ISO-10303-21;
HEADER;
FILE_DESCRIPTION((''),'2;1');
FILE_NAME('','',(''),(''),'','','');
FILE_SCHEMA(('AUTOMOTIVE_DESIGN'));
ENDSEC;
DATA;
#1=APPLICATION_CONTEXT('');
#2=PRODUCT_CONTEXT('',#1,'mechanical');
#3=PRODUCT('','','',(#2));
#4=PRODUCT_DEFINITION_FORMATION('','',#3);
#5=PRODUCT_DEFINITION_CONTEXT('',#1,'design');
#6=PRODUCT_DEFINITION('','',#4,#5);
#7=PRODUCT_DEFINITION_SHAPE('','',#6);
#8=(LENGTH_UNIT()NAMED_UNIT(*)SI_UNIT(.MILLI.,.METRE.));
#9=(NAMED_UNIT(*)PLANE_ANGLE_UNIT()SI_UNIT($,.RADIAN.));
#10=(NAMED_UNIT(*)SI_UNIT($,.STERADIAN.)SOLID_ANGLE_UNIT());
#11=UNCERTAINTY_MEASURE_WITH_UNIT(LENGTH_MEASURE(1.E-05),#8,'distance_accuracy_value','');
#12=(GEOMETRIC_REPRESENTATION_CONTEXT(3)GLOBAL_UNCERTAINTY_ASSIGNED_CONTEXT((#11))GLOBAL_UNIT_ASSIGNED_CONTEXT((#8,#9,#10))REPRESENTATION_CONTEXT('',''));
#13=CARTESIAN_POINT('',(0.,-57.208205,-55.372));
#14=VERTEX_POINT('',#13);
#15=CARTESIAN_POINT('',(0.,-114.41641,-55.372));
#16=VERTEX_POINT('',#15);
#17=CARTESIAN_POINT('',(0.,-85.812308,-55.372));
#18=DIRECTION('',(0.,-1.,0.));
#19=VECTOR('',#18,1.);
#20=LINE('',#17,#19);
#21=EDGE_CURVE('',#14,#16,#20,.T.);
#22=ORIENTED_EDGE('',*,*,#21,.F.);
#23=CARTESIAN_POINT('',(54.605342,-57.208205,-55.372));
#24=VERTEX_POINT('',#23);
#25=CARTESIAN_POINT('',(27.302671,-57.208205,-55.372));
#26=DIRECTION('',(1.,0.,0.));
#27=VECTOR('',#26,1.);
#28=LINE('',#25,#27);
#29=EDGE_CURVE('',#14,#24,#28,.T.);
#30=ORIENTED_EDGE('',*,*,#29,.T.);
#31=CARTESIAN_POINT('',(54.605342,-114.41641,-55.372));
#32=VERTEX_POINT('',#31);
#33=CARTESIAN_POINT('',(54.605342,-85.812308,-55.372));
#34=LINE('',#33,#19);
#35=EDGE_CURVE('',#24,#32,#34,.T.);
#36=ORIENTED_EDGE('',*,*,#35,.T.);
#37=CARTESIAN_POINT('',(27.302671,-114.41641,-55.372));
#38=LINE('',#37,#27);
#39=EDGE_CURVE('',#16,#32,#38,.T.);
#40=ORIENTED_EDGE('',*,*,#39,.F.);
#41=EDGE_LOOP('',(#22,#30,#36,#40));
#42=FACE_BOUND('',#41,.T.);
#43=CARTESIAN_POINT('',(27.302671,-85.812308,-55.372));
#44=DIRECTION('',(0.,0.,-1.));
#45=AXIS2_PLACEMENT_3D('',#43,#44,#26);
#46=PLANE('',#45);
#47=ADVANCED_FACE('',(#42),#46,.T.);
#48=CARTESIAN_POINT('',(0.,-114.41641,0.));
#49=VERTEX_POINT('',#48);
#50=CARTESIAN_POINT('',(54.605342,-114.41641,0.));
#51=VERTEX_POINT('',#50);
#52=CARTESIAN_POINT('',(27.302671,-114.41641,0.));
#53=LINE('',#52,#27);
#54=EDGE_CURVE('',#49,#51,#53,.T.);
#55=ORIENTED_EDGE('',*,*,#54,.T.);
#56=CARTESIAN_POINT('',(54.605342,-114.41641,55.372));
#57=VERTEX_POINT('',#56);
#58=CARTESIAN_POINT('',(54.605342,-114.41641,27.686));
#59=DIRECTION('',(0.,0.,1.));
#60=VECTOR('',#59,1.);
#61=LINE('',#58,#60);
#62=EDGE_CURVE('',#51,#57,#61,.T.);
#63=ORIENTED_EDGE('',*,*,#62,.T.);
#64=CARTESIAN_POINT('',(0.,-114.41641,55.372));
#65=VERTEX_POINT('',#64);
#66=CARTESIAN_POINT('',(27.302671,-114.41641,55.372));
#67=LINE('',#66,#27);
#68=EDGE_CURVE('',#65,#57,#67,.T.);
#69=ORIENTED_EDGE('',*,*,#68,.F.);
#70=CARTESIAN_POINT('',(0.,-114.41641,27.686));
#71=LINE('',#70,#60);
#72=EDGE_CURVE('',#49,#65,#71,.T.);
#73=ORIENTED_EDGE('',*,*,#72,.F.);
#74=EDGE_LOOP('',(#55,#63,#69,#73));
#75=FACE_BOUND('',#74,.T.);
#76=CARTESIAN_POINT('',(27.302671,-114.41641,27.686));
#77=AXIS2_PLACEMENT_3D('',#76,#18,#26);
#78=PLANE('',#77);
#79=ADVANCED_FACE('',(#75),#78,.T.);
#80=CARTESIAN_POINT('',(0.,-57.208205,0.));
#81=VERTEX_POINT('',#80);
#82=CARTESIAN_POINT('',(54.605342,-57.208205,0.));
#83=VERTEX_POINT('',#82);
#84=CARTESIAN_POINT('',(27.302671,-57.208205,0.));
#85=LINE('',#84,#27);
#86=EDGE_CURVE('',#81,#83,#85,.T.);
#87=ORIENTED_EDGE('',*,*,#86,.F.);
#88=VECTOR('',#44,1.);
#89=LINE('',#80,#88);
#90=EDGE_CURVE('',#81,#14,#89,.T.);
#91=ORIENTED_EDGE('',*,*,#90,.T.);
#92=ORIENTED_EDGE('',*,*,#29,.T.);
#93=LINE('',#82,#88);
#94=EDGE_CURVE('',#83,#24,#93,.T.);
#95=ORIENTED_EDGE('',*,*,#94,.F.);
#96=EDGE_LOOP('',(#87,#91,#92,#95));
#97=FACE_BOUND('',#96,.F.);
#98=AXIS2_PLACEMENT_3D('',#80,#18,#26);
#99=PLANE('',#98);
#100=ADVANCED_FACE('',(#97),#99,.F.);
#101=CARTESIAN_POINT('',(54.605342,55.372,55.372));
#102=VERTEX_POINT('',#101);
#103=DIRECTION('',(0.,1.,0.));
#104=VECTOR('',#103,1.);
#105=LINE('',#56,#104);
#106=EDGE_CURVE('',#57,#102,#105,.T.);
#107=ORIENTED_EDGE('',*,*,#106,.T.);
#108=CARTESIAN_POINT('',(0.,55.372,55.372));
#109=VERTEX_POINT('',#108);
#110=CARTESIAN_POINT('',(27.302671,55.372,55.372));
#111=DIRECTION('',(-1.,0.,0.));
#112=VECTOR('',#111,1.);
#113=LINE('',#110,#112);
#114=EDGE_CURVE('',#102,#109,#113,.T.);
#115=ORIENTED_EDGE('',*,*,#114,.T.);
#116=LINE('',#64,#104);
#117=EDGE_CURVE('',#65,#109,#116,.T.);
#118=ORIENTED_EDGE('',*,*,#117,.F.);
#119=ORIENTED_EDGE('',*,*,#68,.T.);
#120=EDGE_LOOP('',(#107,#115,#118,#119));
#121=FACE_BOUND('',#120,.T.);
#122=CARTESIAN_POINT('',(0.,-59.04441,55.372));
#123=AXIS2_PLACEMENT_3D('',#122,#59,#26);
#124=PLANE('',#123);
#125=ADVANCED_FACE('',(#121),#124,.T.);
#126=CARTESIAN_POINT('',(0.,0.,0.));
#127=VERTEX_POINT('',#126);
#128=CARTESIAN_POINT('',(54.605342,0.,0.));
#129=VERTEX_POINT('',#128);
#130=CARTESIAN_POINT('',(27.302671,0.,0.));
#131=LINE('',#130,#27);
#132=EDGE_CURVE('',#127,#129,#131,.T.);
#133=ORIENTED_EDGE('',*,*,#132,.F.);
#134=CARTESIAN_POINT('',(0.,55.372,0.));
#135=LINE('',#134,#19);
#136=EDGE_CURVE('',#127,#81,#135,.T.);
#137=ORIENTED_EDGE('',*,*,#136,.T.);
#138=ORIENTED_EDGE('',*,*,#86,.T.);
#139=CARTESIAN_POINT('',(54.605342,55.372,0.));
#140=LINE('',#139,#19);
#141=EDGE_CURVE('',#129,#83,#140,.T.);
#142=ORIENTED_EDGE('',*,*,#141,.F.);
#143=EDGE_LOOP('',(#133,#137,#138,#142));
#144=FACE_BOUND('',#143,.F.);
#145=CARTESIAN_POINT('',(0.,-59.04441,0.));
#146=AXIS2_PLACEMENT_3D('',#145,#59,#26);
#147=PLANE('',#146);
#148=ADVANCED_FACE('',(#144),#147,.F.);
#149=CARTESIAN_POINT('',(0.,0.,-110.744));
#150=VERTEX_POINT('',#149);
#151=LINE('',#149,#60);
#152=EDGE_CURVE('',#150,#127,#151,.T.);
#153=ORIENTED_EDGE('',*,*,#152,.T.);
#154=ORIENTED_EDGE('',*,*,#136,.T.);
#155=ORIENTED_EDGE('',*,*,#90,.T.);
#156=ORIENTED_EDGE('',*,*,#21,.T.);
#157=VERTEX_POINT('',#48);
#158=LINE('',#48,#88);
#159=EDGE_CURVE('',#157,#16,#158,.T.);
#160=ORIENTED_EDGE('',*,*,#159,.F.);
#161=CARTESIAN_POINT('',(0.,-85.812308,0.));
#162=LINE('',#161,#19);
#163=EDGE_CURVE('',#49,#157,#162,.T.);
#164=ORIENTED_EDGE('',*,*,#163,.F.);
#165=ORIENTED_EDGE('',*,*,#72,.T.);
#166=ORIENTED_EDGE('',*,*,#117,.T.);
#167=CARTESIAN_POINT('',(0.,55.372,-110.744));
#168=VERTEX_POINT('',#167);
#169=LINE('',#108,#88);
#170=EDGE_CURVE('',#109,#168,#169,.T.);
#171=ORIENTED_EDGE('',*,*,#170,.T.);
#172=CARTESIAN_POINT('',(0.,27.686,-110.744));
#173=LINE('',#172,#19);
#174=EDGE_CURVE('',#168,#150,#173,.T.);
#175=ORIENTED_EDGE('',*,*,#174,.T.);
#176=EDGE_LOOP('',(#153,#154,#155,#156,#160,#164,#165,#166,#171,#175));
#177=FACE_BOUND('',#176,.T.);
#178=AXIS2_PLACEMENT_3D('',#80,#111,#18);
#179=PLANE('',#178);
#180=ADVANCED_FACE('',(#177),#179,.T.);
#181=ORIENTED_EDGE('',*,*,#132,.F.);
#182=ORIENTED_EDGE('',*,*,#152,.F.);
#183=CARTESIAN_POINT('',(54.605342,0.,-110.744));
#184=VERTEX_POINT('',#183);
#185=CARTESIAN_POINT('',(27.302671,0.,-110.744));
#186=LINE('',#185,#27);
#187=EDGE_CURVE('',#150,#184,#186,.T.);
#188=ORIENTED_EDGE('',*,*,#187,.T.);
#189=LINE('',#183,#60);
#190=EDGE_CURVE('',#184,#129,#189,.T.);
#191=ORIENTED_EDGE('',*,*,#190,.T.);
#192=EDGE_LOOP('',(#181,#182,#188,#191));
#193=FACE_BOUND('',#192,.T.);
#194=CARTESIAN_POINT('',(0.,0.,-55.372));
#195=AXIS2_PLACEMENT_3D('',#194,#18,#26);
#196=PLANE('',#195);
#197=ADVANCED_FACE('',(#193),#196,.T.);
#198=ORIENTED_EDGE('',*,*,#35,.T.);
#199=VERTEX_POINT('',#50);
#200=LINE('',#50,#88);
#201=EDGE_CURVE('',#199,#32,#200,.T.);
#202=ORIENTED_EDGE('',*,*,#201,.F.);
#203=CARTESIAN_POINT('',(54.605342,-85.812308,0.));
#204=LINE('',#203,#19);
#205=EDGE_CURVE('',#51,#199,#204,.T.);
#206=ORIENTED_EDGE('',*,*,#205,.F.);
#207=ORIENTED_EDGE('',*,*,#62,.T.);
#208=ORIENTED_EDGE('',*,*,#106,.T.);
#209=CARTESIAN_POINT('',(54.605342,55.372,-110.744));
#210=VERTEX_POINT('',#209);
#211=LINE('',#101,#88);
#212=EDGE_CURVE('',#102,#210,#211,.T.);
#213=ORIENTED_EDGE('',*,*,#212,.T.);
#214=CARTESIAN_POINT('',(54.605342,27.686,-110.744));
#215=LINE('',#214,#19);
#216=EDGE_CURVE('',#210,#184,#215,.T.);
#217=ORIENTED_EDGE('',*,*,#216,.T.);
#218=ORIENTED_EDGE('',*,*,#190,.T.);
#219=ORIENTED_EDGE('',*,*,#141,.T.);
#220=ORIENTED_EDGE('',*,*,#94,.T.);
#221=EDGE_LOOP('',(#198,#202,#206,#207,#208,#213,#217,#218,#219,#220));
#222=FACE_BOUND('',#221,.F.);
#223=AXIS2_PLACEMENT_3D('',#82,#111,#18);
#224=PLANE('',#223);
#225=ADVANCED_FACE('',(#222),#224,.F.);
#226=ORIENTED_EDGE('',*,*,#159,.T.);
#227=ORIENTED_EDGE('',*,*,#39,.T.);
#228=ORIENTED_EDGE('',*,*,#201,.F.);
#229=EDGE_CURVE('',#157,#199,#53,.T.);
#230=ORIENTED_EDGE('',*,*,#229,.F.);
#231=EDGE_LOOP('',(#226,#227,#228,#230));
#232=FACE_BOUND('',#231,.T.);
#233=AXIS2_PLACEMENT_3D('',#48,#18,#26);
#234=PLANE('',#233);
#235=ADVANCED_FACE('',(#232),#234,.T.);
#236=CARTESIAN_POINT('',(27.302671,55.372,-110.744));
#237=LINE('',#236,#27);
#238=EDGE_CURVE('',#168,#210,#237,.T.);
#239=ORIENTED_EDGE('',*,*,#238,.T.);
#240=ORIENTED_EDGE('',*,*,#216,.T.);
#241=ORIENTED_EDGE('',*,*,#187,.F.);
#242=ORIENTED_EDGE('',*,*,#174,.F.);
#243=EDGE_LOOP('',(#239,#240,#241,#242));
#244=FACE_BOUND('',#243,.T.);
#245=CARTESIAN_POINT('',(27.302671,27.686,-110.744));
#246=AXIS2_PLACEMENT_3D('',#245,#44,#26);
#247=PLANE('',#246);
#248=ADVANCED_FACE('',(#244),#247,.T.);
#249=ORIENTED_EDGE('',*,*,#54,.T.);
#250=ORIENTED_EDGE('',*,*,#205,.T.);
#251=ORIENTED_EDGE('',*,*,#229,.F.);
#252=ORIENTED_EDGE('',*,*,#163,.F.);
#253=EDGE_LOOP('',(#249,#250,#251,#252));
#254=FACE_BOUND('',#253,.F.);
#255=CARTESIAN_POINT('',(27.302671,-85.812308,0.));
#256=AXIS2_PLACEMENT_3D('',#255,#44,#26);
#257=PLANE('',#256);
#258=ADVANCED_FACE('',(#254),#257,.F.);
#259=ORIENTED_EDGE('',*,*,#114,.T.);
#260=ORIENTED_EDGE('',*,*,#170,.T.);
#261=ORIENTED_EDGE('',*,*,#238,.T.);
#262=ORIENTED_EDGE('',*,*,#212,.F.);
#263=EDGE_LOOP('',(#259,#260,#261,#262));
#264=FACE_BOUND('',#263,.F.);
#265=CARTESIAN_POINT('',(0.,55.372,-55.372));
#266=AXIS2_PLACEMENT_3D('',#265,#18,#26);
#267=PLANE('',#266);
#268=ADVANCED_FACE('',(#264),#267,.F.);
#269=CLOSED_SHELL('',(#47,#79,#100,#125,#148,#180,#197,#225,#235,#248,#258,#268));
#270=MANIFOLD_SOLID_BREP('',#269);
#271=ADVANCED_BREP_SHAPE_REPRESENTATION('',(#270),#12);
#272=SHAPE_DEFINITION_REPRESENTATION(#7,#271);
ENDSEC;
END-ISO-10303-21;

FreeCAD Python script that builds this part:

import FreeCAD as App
import Part
import Sketcher

V = App.Vector
Q = App.Units.Quantity

doc = App.newDocument("Part")
body = doc.addObject("PartDesign::Body", "Body")

sketch1 = body.newObject("Sketcher::SketchObject", "Sketch")
sketch1.AttachmentSupport = (doc.getObject("XY_Plane"), [""])
sketch1.MapMode = "FlatFace"
sketch1.addGeometry([
    Part.LineSegment(V(0, 0, 0), V(0, -59, 0)),
    Part.LineSegment(V(0, -59, 0), V(55, -59, 0)),
    Part.LineSegment(V(55, -59, 0), V(55, 0, 0)),
    Part.LineSegment(V(55, 0, 0), V(0, 0, 0)),
], False)
sketch1.addConstraint([
    Sketcher.Constraint("Coincident", 0, 2, 1, 1),
    Sketcher.Constraint("Coincident", 1, 2, 2, 1),
    Sketcher.Constraint("Coincident", 2, 2, 3, 1),
    Sketcher.Constraint("Coincident", 3, 2, 0, 1),
    Sketcher.Constraint("Vertical", 0),
    Sketcher.Constraint("Horizontal", 1),
    Sketcher.Constraint("Vertical", 2),
    Sketcher.Constraint("Horizontal", 3),
    Sketcher.Constraint("Coincident", 3, 2, -1, 1),
    Sketcher.Constraint("DistanceY", 0, 2, 0, 1, Q("59.04441 mm")),
    Sketcher.Constraint("DistanceX", 1, 1, 1, 2, Q("54.605342 mm")),
])
pad1 = body.newObject("PartDesign::Pad", "Pad")
pad1.Profile = sketch1
pad1.Length = Q("2.18 in")

sketch2 = body.newObject("Sketcher::SketchObject", "Sketch001")
sketch2.AttachmentSupport = (doc.getObject("XZ_Plane"), [""])
sketch2.MapMode = "FlatFace"
sketch2.addGeometry([
    Part.LineSegment(V(55, 55, 0), V(55, 0, 0)),
    Part.LineSegment(V(55, 0, 0), V(0, 0, 0)),
    Part.LineSegment(V(0, 0, 0), V(0, 55, 0)),
    Part.LineSegment(V(0, 55, 0), V(55, 55, 0)),
], False)
sketch2.addConstraint([
    Sketcher.Constraint("Coincident", 0, 2, 1, 1),
    Sketcher.Constraint("Coincident", 1, 2, 2, 1),
    Sketcher.Constraint("Coincident", 2, 2, 3, 1),
    Sketcher.Constraint("Coincident", 3, 2, 0, 1),
    Sketcher.Constraint("Vertical", 0),
    Sketcher.Constraint("Horizontal", 1),
    Sketcher.Constraint("Vertical", 2),
    Sketcher.Constraint("Horizontal", 3),
    Sketcher.Constraint("Coincident", 1, 2, -1, 1),
    Sketcher.Constraint("DistanceY", 0, 2, 0, 1, Q("2.18 in")),
    Sketcher.Constraint("DistanceX", 1, 2, 1, 1, Q("54.605342 mm")),
])
pad2 = body.newObject("PartDesign::Pad", "Pad001")
pad2.Profile = sketch2
pad2.Length = Q("2.18 in")
pad2.Reversed = True

sketch3 = body.newObject("Sketcher::SketchObject", "Sketch002")
sketch3.AttachmentSupport = (doc.getObject("XZ_Plane"), [""])
sketch3.MapMode = "FlatFace"
sketch3.AttachmentOffset = App.Placement(V(0, 0, 59.04441), App.Rotation())
sketch3.addGeometry([
    Part.LineSegment(V(0, 55, 0), V(0, 0, 0)),
    Part.LineSegment(V(0, 0, 0), V(55, 0, 0)),
    Part.LineSegment(V(55, 0, 0), V(55, 55, 0)),
    Part.LineSegment(V(55, 55, 0), V(0, 55, 0)),
], False)
sketch3.addConstraint([
    Sketcher.Constraint("Coincident", 0, 2, 1, 1),
    Sketcher.Constraint("Coincident", 1, 2, 2, 1),
    Sketcher.Constraint("Coincident", 2, 2, 3, 1),
    Sketcher.Constraint("Coincident", 3, 2, 0, 1),
    Sketcher.Constraint("Vertical", 0),
    Sketcher.Constraint("Horizontal", 1),
    Sketcher.Constraint("Vertical", 2),
    Sketcher.Constraint("Horizontal", 3),
    Sketcher.Constraint("Coincident", 0, 2, -1, 1),
    Sketcher.Constraint("DistanceY", 0, 2, 0, 1, Q("2.18 in")),
    Sketcher.Constraint("DistanceX", 1, 1, 1, 2, Q("54.605342 mm")),
])
pad3 = body.newObject("PartDesign::Pad", "Pad002")
pad3.Profile = sketch3
pad3.Length = Q("2.18 in")

sketch4 = body.newObject("Sketcher::SketchObject", "Sketch003")
sketch4.AttachmentSupport = (doc.getObject("XY_Plane"), [""])
sketch4.MapMode = "FlatFace"
sketch4.addGeometry([
    Part.LineSegment(V(0, 0, 0), V(0, 55, 0)),
    Part.LineSegment(V(0, 55, 0), V(55, 55, 0)),
    Part.LineSegment(V(55, 55, 0), V(55, 0, 0)),
    Part.LineSegment(V(55, 0, 0), V(0, 0, 0)),
], False)
sketch4.addConstraint([
    Sketcher.Constraint("Coincident", 0, 2, 1, 1),
    Sketcher.Constraint("Coincident", 1, 2, 2, 1),
    Sketcher.Constraint("Coincident", 2, 2, 3, 1),
    Sketcher.Constraint("Coincident", 3, 2, 0, 1),
    Sketcher.Constraint("Vertical", 0),
    Sketcher.Constraint("Horizontal", 1),
    Sketcher.Constraint("Vertical", 2),
    Sketcher.Constraint("Horizontal", 3),
    Sketcher.Constraint("Coincident", 3, 2, -1, 1),
    Sketcher.Constraint("DistanceY", 0, 1, 0, 2, Q("2.18 in")),
    Sketcher.Constraint("DistanceX", 1, 1, 1, 2, Q("54.605342 mm")),
])
pad4 = body.newObject("PartDesign::Pad", "Pad003")
pad4.Profile = sketch4
pad4.Length = Q("2.18 in")
pad4.Reversed = True

sketch5 = body.newObject("Sketcher::SketchObject", "Sketch004")
sketch5.AttachmentSupport = (doc.getObject("XY_Plane"), [""])
sketch5.MapMode = "FlatFace"
sketch5.AttachmentOffset = App.Placement(V(0, 0, -2.18 * 25.4), App.Rotation())
sketch5.addGeometry([
    Part.LineSegment(V(0, 0, 0), V(0, 55, 0)),
    Part.LineSegment(V(0, 55, 0), V(55, 55, 0)),
    Part.LineSegment(V(55, 55, 0), V(55, 0, 0)),
    Part.LineSegment(V(55, 0, 0), V(0, 0, 0)),
], False)
sketch5.addConstraint([
    Sketcher.Constraint("Coincident", 0, 2, 1, 1),
    Sketcher.Constraint("Coincident", 1, 2, 2, 1),
    Sketcher.Constraint("Coincident", 2, 2, 3, 1),
    Sketcher.Constraint("Coincident", 3, 2, 0, 1),
    Sketcher.Constraint("Vertical", 0),
    Sketcher.Constraint("Horizontal", 1),
    Sketcher.Constraint("Vertical", 2),
    Sketcher.Constraint("Horizontal", 3),
    Sketcher.Constraint("Coincident", 3, 2, -1, 1),
    Sketcher.Constraint("DistanceY", 0, 1, 0, 2, Q("2.18 in")),
    Sketcher.Constraint("DistanceX", 1, 1, 1, 2, Q("54.605342 mm")),
])
pad5 = body.newObject("PartDesign::Pad", "Pad004")
pad5.Profile = sketch5
pad5.Length = Q("2.18 in")
pad5.Reversed = True

sketch6 = body.newObject("Sketcher::SketchObject", "Sketch005")
sketch6.AttachmentSupport = (doc.getObject("XY_Plane"), [""])
sketch6.MapMode = "FlatFace"
sketch6.addGeometry([
    Part.LineSegment(V(0, -114, 0), V(0, -57, 0)),
    Part.LineSegment(V(0, -57, 0), V(55, -57, 0)),
    Part.LineSegment(V(55, -57, 0), V(55, -114, 0)),
    Part.LineSegment(V(55, -114, 0), V(0, -114, 0)),
], False)
sketch6.addConstraint([
    Sketcher.Constraint("Coincident", 0, 2, 1, 1),
    Sketcher.Constraint("Coincident", 1, 2, 2, 1),
    Sketcher.Constraint("Coincident", 2, 2, 3, 1),
    Sketcher.Constraint("Coincident", 3, 2, 0, 1),
    Sketcher.Constraint("Vertical", 0),
    Sketcher.Constraint("Horizontal", 1),
    Sketcher.Constraint("Vertical", 2),
    Sketcher.Constraint("Horizontal", 3),
    Sketcher.Constraint("PointOnObject", 0, 2, -2),
    Sketcher.Constraint("DistanceX", 1, 1, 1, 2, Q("54.605342 mm")),
    Sketcher.Constraint("DistanceY", 0, 1, 0, 2, Q("57.208205 mm")),
    Sketcher.Constraint("DistanceY", 2, 2, -1, 1, Q("114.41641 mm")),
])
pad6 = body.newObject("PartDesign::Pad", "Pad005")
pad6.Profile = sketch6
pad6.Length = Q("2.18 in")
pad6.Reversed = True

doc.recompute()
